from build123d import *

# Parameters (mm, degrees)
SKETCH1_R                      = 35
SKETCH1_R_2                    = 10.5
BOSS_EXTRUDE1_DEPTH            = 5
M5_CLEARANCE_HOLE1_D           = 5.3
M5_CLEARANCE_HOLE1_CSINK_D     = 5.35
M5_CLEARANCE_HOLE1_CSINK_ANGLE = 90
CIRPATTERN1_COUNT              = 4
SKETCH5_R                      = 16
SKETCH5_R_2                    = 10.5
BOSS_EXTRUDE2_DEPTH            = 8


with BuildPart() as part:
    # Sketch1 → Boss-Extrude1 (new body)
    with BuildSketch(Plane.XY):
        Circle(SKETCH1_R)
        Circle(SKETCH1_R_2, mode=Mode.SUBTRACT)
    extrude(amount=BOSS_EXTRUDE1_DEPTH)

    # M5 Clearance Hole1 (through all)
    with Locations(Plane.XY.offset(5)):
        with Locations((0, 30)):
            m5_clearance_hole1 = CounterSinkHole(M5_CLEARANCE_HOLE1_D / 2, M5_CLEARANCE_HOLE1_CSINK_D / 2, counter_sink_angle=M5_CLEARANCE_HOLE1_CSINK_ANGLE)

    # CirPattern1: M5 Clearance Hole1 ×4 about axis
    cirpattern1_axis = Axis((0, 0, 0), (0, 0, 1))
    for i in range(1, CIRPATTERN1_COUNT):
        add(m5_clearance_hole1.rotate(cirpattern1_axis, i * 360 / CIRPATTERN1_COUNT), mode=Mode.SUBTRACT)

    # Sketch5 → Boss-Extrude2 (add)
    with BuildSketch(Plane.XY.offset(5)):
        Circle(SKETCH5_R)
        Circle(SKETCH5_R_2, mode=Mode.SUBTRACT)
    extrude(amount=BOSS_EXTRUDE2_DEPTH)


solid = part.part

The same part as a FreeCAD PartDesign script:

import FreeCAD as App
import Part
import Sketcher

V = App.Vector

doc = App.newDocument("Part")
body = doc.addObject("PartDesign::Body", "Body")

sketch1 = doc.addObject("Sketcher::SketchObject", "Sketch")
body.addObject(sketch1)
sketch1.AttachmentSupport = (doc.XY_Plane, [""])
sketch1.MapMode = "FlatFace"
sketch1.addGeometry(Part.Circle(V(0, 0, 0), V(0, 0, 1), 35), False)
sketch1.addGeometry(Part.Circle(V(0, 0, 0), V(0, 0, 1), 10), False)
sketch1.addConstraint(Sketcher.Constraint("Coincident", 0, 3, -1, 1))
sketch1.addConstraint(Sketcher.Constraint("Coincident", 1, 3, -1, 1))
sketch1.addConstraint(Sketcher.Constraint("Diameter", 0, 70.0))
sketch1.addConstraint(Sketcher.Constraint("Diameter", 1, 21.0))
pad1 = doc.addObject("PartDesign::Pad", "Pad")
body.addObject(pad1)
pad1.Profile = sketch1
pad1.Length = 5

sketch2 = doc.addObject("Sketcher::SketchObject", "Sketch001")
body.addObject(sketch2)
sketch2.AttachmentSupport = (doc.XY_Plane, [""])
sketch2.MapMode = "FlatFace"
sketch2.AttachmentOffset = App.Placement(V(0, 0, 5), App.Rotation())
sketch2.addGeometry(Part.Circle(V(0, 30, 0), V(0, 0, 1), 2.6), False)
sketch2.addConstraint(Sketcher.Constraint("PointOnObject", 0, 3, -2))
sketch2.addConstraint(Sketcher.Constraint("Diameter", 0, 5.3))
sketch2.addConstraint(Sketcher.Constraint("DistanceY", -1, 1, 0, 3, 30.0))
doc.recompute()
hole = doc.addObject("PartDesign::Hole", "Hole")
body.addObject(hole)
hole.Profile = sketch2
hole.ThreadType = "None"
hole.Diameter = 5.3
hole.DepthType = "ThroughAll"
hole.HoleCutType = "Countersink"
hole.HoleCutDiameter = 5.35
hole.HoleCutCountersinkAngle = 90
doc.recompute()

polarpattern = doc.addObject("PartDesign::PolarPattern", "PolarPattern")
body.addObject(polarpattern)
polarpattern.Originals = [hole]
polarpattern.Axis = (doc.Z_Axis, [""])
polarpattern.Angle = 360
polarpattern.Occurrences = 4
body.Tip = polarpattern

sketch3 = doc.addObject("Sketcher::SketchObject", "Sketch002")
body.addObject(sketch3)
sketch3.AttachmentSupport = (doc.XY_Plane, [""])
sketch3.MapMode = "FlatFace"
sketch3.AttachmentOffset = App.Placement(V(0, 0, 5), App.Rotation())
sketch3.addGeometry(Part.Circle(V(0, 0, 0), V(0, 0, 1), 16), False)
sketch3.addGeometry(Part.Circle(V(0, 0, 0), V(0, 0, 1), 10), False)
sketch3.addConstraint(Sketcher.Constraint("Coincident", 0, 3, -1, 1))
sketch3.addConstraint(Sketcher.Constraint("Coincident", 1, 3, -1, 1))
sketch3.addConstraint(Sketcher.Constraint("Diameter", 0, 32.0))
sketch3.addConstraint(Sketcher.Constraint("Diameter", 1, 21.0))
pad2 = doc.addObject("PartDesign::Pad", "Pad001")
body.addObject(pad2)
pad2.Profile = sketch3
pad2.Length = 8

doc.recompute()
